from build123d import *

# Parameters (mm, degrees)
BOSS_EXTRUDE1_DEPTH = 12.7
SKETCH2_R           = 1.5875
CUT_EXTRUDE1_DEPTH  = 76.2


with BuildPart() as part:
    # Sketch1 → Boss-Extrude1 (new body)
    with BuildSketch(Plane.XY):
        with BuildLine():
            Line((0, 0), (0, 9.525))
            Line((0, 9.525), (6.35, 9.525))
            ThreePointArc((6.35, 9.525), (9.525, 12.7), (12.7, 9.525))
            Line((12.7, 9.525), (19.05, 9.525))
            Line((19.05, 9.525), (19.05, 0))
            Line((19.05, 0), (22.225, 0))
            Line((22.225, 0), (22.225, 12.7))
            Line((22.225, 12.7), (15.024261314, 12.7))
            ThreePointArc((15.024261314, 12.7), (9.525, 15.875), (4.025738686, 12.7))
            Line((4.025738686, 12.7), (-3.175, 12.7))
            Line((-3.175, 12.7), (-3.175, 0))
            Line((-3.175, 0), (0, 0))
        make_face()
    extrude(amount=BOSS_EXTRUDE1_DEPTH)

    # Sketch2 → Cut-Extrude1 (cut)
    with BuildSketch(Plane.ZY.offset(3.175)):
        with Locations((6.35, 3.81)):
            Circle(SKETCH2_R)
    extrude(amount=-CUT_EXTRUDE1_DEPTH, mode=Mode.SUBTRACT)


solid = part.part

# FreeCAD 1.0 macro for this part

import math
import FreeCAD as App
import Part
import Sketcher
from FreeCAD import Vector
Q = App.Units.Quantity

doc = App.newDocument("Part")
params = doc.addObject("Spreadsheet::Sheet", "Params")
for row, (alias, value) in enumerate([
    ("sketch1_radius", "0.25 in"),
    ("sketch1_height", "0.5 in"),
    ("sketch1_radius2", "0.125 in"),
    ("sketch1_width", "0.25 in"),
    ("sketch1_height2", "0.375 in"),
    ("pad1_length", "0.5 in"),
    ("sketch2_diameter", "0.125 in"),
    ("pocket1_length", "3 in"),
], start=1):
    params.set(f"A{row}", alias)
    params.set(f"B{row}", "=" + value)
    params.setAlias(f"B{row}", alias)

body = doc.addObject("PartDesign::Body", "Body")

# Sketch on XY plane
sketch1 = body.newObject("Sketcher::SketchObject", "Sketch")
sketch1.AttachmentSupport = (doc.getObject("XY_Plane"), [""])
sketch1.MapMode = "FlatFace"
sketch1.addGeometry(Part.LineSegment(Vector(0, 0, 0), Vector(0, 9.5, 0)), False)
sketch1.addGeometry(Part.LineSegment(Vector(0, 9.5, 0), Vector(6.3, 9.5, 0)), False)
sketch1.addGeometry(Part.ArcOfCircle(Part.Circle(Vector(9.5, 9.5, 0), Vector(0, 0, 1), 3.2), math.radians(0), math.radians(180)), False)
sketch1.addGeometry(Part.LineSegment(Vector(12.7, 9.5, 0), Vector(19.1, 9.5, 0)), False)
sketch1.addGeometry(Part.LineSegment(Vector(19.1, 9.5, 0), Vector(19.1, 0, 0)), False)
sketch1.addGeometry(Part.LineSegment(Vector(19.1, 0, 0), Vector(22.2, 0, 0)), False)
sketch1.addGeometry(Part.LineSegment(Vector(22.2, 0, 0), Vector(22.2, 12.7, 0)), False)
sketch1.addGeometry(Part.LineSegment(Vector(22.2, 12.7, 0), Vector(15, 12.7, 0)), False)
sketch1.addGeometry(Part.ArcOfCircle(Part.Circle(Vector(9.5, 9.5, 0), Vector(0, 0, 1), 6.3), math.radians(30), math.radians(150)), False)
sketch1.addGeometry(Part.LineSegment(Vector(4, 12.7, 0), Vector(-3.2, 12.7, 0)), False)
sketch1.addGeometry(Part.LineSegment(Vector(-3.2, 12.7, 0), Vector(-3.2, 0, 0)), False)
sketch1.addGeometry(Part.LineSegment(Vector(-3.2, 0, 0), Vector(0, 0, 0)), False)
sketch1.addConstraint(Sketcher.Constraint("Coincident", 0, 2, 1, 1))
sketch1.addConstraint(Sketcher.Constraint("Coincident", 1, 2, 2, 2))
sketch1.addConstraint(Sketcher.Constraint("Coincident", 2, 1, 3, 1))
sketch1.addConstraint(Sketcher.Constraint("Coincident", 3, 2, 4, 1))
sketch1.addConstraint(Sketcher.Constraint("Coincident", 4, 2, 5, 1))
sketch1.addConstraint(Sketcher.Constraint("Coincident", 5, 2, 6, 1))
sketch1.addConstraint(Sketcher.Constraint("Coincident", 6, 2, 7, 1))
sketch1.addConstraint(Sketcher.Constraint("Coincident", 7, 2, 8, 1))
sketch1.addConstraint(Sketcher.Constraint("Coincident", 8, 2, 9, 1))
sketch1.addConstraint(Sketcher.Constraint("Coincident", 9, 2, 10, 1))
sketch1.addConstraint(Sketcher.Constraint("Coincident", 10, 2, 11, 1))
sketch1.addConstraint(Sketcher.Constraint("Coincident", 11, 2, 0, 1))
sketch1.addConstraint(Sketcher.Constraint("Vertical", 0))
sketch1.addConstraint(Sketcher.Constraint("Horizontal", 1))
sketch1.addConstraint(Sketcher.Constraint("Horizontal", 3))
sketch1.addConstraint(Sketcher.Constraint("Vertical", 4))
sketch1.addConstraint(Sketcher.Constraint("Horizontal", 5))
sketch1.addConstraint(Sketcher.Constraint("Vertical", 6))
sketch1.addConstraint(Sketcher.Constraint("Horizontal", 7))
sketch1.addConstraint(Sketcher.Constraint("Horizontal", 9))
sketch1.addConstraint(Sketcher.Constraint("Vertical", 10))
sketch1.addConstraint(Sketcher.Constraint("Horizontal", 11))
sketch1.addConstraint(Sketcher.Constraint("Coincident", 11, 2, -1, 1))
sketch1.addConstraint(Sketcher.Constraint("Coincident", 8, 3, 2, 3))
sketch1.addConstraint(Sketcher.Constraint("PointOnObject", 4, 2, -1))
sketch1.addConstraint(Sketcher.Constraint("Horizontal", 8, 3, 0, 2))
sketch1.addConstraint(Sketcher.Constraint("Horizontal", 1, 2, 2, 1))
sketch1.addConstraint(Sketcher.Constraint("Horizontal", 7, 2, 8, 2))
sketch1.addConstraint(Sketcher.Constraint("Equal", 1, 3))
sketch1.addConstraint(Sketcher.Constraint("Equal", 7, 9))
sketch1.addConstraint(Sketcher.Constraint("Radius", 8, Q("0.25 in")))
sketch1.addConstraint(Sketcher.Constraint("DistanceY", 6, 1, 6, 2, Q("0.5 in")))
sketch1.addConstraint(Sketcher.Constraint("Radius", 2, Q("0.125 in")))
sketch1.addConstraint(Sketcher.Constraint("DistanceX", 1, 1, 1, 2, Q("0.25 in")))
sketch1.addConstraint(Sketcher.Constraint("DistanceX", 2, 3, 5, 2, Q("0.5 in")))
sketch1.addConstraint(Sketcher.Constraint("DistanceY", 0, 1, 0, 2, Q("0.375 in")))
sketch1.setExpression("Constraints[30]", "Params.sketch1_radius")
sketch1.setExpression("Constraints[31]", "Params.sketch1_height")
sketch1.setExpression("Constraints[32]", "Params.sketch1_radius2")
sketch1.setExpression("Constraints[33]", "Params.sketch1_width")
sketch1.setExpression("Constraints[35]", "Params.sketch1_height2")
pad1 = body.newObject("PartDesign::Pad", "Pad")
pad1.Profile = sketch1
pad1.setExpression("Length", "Params.pad1_length")

# Sketch on YZ plane
sketch2 = body.newObject("Sketcher::SketchObject", "Sketch001")
sketch2.AttachmentSupport = (doc.getObject("YZ_Plane"), [""])
sketch2.MapMode = "FlatFace"
sketch2.AttachmentOffset = App.Placement(Vector(0, 0, -0.125 * 25.4), App.Rotation())
sketch2.addGeometry(Part.Circle(Vector(3.8, 6.3, 0), Vector(0, 0, 1), 1.6), False)
sketch2.addConstraint(Sketcher.Constraint("Diameter", 0, Q("0.125 in")))
sketch2.addConstraint(Sketcher.Constraint("DistanceX", -1, 1, 0, 3, Q("0.15 in")))
sketch2.addConstraint(Sketcher.Constraint("DistanceY", -1, 1, 0, 3, Q("0.25 in")))
sketch2.setExpression("Constraints[0]", "Params.sketch2_diameter")
pocket1 = body.newObject("PartDesign::Pocket", "Pocket")
pocket1.Profile = sketch2
pocket1.setExpression("Length", "Params.pocket1_length")
pocket1.Reversed = True

doc.recompute()
